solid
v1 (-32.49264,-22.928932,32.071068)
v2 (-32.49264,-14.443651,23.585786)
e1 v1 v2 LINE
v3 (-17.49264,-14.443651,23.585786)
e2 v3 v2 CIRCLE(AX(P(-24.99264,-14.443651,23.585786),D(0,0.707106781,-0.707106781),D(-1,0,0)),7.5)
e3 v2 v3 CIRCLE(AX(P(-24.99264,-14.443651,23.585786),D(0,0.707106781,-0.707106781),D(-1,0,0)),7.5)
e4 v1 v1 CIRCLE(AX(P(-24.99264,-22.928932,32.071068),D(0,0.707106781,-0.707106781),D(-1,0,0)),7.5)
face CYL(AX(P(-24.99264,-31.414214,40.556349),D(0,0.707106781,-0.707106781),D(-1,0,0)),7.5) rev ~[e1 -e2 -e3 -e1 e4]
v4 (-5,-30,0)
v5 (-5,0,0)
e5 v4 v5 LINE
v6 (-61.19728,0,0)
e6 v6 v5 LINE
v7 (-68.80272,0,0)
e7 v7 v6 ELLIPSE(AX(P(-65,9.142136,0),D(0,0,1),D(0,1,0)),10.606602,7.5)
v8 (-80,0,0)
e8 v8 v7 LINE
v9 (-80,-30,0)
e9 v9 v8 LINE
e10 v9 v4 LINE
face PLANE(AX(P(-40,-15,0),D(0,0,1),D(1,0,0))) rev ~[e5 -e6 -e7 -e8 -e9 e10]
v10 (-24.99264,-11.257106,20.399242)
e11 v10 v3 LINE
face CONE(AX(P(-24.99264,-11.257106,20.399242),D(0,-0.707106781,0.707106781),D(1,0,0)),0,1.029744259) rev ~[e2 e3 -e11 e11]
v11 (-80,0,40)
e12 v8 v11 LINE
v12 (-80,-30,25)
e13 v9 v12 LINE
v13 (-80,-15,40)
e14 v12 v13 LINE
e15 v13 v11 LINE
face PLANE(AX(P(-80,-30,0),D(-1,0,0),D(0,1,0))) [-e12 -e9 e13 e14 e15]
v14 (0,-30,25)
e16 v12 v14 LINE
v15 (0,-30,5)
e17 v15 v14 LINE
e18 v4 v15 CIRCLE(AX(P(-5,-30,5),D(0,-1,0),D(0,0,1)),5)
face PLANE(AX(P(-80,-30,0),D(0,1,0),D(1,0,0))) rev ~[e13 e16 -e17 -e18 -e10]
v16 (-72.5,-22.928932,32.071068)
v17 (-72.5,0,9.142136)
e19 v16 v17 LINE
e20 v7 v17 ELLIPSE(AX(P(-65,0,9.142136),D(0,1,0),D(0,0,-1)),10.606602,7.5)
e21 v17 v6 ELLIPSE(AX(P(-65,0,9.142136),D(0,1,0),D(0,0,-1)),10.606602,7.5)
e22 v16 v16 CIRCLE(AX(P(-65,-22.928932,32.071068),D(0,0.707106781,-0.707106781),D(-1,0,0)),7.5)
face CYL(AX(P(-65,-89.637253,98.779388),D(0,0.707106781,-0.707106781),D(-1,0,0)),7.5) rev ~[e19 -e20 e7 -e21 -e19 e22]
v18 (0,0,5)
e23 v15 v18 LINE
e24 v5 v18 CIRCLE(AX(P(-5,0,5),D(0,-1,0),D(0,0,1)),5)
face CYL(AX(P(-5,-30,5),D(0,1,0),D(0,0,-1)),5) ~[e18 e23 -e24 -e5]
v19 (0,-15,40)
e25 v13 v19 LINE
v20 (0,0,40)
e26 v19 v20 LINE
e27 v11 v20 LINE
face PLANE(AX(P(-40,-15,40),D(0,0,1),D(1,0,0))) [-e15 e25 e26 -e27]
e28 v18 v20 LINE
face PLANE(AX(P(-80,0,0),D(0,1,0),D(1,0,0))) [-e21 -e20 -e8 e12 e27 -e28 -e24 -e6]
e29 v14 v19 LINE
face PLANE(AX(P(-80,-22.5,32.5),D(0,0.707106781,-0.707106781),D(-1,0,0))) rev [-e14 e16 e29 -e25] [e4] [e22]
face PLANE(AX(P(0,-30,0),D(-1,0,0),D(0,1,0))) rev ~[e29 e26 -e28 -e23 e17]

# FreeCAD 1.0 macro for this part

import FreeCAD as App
import Part
import Sketcher
from FreeCAD import Vector


def edges_at(feature, points):
    """Names of the edges that pass closest to the given points."""
    edges = feature.Shape.Edges
    near = lambda p: min(range(len(edges)), key=lambda i: edges[i].distToShape(Part.Vertex(*p))[0])
    return sorted({f"Edge{near(p) + 1}" for p in points})


def add_polygon(sketch, points):
    """Adds a closed chain of lines whose ends are joined by coincident constraints."""
    first, n = sketch.GeometryCount, len(points)
    for a, b in zip(points, points[1:] + points[:1]):
        sketch.addGeometry(Part.LineSegment(App.Vector(*a, 0), App.Vector(*b, 0)), False)
    for i in range(n):
        sketch.addConstraint(Sketcher.Constraint("Coincident", first + i, 2, first + (i + 1) % n, 1))

doc = App.newDocument("Part")
body = doc.addObject("PartDesign::Body", "Body")

# Sketch on XY plane
sketch1 = body.newObject("Sketcher::SketchObject", "Sketch")
sketch1.AttachmentSupport = (doc.getObject("XY_Plane"), [""])
sketch1.MapMode = "FlatFace"
add_polygon(sketch1, [(-80, 0), (-80, -30), (0, -30), (0, 0)])  # lines 0-3
sketch1.addConstraint([
    Sketcher.Constraint("Vertical", 0),
    Sketcher.Constraint("Horizontal", 1),
    Sketcher.Constraint("Vertical", 2),
    Sketcher.Constraint("Horizontal", 3),
    Sketcher.Constraint("Coincident", 2, 2, -1, 1),
    Sketcher.Constraint("DistanceX", 1, 1, 1, 2, 80.0),
    Sketcher.Constraint("DistanceY", 0, 2, 0, 1, 30.0),
])
pad1 = body.newObject("PartDesign::Pad", "Pad")
pad1.Profile = sketch1
pad1.Length = 40
doc.recompute()

chamfer = body.newObject("PartDesign::Chamfer", "Chamfer")
chamfer.Base = (pad1, edges_at(pad1, [(-40, -30, 40)]))
chamfer.Size = 15

# Sketch on an angled plane
sketch2 = body.newObject("Sketcher::SketchObject", "Sketch001")
sketch2.Placement = App.Placement(Vector(0, -27.5, 27.5), App.Rotation(Vector(1, 0, 0), Vector(0, 0.707106781, 0.707106781), Vector(0, -0.707106781, 0.707106781), "ZXY"))
sketch2.addGeometry(Part.Circle(Vector(-65, 6.464466, 0), Vector(0, 0, 1), 7.5), False)
sketch2.addConstraint([
    Sketcher.Constraint("Diameter", 0, 15.0),
    Sketcher.Constraint("DistanceX", 0, 3, -1, 1, 65.0),
    Sketcher.Constraint("DistanceY", -1, 1, 0, 3, 6.464466),
])
doc.recompute()
hole = body.newObject("PartDesign::Hole", "Hole")
hole.Profile = sketch2
hole.ThreadType = "None"
hole.Diameter = 15
hole.DepthType = "ThroughAll"

# Sketch on an angled plane
sketch3 = body.newObject("Sketcher::SketchObject", "Sketch002")
sketch3.Placement = App.Placement(Vector(0, -27.5, 27.5), App.Rotation(Vector(1, 0, 0), Vector(0, 0.707106781, 0.707106781), Vector(0, -0.707106781, 0.707106781), "ZXY"))
sketch3.addGeometry(Part.Circle(Vector(-24.99264, 6.464466, 0), Vector(0, 0, 1), 7.5), False)
sketch3.addConstraint([
    Sketcher.Constraint("Diameter", 0, 15.0),
    Sketcher.Constraint("DistanceX", 0, 3, -1, 1, 24.99264),
    Sketcher.Constraint("DistanceY", -1, 1, 0, 3, 6.464466),
])
doc.recompute()
hole2 = body.newObject("PartDesign::Hole", "Hole001")
hole2.Profile = sketch3
hole2.ThreadType = "None"
hole2.Diameter = 15
hole2.DepthType = "Dimension"
hole2.Depth = 12
hole2.DrillPoint = "Angled"
hole2.DrillPointAngle = 118
doc.recompute()

fillet = body.newObject("PartDesign::Fillet", "Fillet")
fillet.Base = (hole2, edges_at(hole2, [(0, -15, 0)]))
fillet.Radius = 5

doc.recompute()
